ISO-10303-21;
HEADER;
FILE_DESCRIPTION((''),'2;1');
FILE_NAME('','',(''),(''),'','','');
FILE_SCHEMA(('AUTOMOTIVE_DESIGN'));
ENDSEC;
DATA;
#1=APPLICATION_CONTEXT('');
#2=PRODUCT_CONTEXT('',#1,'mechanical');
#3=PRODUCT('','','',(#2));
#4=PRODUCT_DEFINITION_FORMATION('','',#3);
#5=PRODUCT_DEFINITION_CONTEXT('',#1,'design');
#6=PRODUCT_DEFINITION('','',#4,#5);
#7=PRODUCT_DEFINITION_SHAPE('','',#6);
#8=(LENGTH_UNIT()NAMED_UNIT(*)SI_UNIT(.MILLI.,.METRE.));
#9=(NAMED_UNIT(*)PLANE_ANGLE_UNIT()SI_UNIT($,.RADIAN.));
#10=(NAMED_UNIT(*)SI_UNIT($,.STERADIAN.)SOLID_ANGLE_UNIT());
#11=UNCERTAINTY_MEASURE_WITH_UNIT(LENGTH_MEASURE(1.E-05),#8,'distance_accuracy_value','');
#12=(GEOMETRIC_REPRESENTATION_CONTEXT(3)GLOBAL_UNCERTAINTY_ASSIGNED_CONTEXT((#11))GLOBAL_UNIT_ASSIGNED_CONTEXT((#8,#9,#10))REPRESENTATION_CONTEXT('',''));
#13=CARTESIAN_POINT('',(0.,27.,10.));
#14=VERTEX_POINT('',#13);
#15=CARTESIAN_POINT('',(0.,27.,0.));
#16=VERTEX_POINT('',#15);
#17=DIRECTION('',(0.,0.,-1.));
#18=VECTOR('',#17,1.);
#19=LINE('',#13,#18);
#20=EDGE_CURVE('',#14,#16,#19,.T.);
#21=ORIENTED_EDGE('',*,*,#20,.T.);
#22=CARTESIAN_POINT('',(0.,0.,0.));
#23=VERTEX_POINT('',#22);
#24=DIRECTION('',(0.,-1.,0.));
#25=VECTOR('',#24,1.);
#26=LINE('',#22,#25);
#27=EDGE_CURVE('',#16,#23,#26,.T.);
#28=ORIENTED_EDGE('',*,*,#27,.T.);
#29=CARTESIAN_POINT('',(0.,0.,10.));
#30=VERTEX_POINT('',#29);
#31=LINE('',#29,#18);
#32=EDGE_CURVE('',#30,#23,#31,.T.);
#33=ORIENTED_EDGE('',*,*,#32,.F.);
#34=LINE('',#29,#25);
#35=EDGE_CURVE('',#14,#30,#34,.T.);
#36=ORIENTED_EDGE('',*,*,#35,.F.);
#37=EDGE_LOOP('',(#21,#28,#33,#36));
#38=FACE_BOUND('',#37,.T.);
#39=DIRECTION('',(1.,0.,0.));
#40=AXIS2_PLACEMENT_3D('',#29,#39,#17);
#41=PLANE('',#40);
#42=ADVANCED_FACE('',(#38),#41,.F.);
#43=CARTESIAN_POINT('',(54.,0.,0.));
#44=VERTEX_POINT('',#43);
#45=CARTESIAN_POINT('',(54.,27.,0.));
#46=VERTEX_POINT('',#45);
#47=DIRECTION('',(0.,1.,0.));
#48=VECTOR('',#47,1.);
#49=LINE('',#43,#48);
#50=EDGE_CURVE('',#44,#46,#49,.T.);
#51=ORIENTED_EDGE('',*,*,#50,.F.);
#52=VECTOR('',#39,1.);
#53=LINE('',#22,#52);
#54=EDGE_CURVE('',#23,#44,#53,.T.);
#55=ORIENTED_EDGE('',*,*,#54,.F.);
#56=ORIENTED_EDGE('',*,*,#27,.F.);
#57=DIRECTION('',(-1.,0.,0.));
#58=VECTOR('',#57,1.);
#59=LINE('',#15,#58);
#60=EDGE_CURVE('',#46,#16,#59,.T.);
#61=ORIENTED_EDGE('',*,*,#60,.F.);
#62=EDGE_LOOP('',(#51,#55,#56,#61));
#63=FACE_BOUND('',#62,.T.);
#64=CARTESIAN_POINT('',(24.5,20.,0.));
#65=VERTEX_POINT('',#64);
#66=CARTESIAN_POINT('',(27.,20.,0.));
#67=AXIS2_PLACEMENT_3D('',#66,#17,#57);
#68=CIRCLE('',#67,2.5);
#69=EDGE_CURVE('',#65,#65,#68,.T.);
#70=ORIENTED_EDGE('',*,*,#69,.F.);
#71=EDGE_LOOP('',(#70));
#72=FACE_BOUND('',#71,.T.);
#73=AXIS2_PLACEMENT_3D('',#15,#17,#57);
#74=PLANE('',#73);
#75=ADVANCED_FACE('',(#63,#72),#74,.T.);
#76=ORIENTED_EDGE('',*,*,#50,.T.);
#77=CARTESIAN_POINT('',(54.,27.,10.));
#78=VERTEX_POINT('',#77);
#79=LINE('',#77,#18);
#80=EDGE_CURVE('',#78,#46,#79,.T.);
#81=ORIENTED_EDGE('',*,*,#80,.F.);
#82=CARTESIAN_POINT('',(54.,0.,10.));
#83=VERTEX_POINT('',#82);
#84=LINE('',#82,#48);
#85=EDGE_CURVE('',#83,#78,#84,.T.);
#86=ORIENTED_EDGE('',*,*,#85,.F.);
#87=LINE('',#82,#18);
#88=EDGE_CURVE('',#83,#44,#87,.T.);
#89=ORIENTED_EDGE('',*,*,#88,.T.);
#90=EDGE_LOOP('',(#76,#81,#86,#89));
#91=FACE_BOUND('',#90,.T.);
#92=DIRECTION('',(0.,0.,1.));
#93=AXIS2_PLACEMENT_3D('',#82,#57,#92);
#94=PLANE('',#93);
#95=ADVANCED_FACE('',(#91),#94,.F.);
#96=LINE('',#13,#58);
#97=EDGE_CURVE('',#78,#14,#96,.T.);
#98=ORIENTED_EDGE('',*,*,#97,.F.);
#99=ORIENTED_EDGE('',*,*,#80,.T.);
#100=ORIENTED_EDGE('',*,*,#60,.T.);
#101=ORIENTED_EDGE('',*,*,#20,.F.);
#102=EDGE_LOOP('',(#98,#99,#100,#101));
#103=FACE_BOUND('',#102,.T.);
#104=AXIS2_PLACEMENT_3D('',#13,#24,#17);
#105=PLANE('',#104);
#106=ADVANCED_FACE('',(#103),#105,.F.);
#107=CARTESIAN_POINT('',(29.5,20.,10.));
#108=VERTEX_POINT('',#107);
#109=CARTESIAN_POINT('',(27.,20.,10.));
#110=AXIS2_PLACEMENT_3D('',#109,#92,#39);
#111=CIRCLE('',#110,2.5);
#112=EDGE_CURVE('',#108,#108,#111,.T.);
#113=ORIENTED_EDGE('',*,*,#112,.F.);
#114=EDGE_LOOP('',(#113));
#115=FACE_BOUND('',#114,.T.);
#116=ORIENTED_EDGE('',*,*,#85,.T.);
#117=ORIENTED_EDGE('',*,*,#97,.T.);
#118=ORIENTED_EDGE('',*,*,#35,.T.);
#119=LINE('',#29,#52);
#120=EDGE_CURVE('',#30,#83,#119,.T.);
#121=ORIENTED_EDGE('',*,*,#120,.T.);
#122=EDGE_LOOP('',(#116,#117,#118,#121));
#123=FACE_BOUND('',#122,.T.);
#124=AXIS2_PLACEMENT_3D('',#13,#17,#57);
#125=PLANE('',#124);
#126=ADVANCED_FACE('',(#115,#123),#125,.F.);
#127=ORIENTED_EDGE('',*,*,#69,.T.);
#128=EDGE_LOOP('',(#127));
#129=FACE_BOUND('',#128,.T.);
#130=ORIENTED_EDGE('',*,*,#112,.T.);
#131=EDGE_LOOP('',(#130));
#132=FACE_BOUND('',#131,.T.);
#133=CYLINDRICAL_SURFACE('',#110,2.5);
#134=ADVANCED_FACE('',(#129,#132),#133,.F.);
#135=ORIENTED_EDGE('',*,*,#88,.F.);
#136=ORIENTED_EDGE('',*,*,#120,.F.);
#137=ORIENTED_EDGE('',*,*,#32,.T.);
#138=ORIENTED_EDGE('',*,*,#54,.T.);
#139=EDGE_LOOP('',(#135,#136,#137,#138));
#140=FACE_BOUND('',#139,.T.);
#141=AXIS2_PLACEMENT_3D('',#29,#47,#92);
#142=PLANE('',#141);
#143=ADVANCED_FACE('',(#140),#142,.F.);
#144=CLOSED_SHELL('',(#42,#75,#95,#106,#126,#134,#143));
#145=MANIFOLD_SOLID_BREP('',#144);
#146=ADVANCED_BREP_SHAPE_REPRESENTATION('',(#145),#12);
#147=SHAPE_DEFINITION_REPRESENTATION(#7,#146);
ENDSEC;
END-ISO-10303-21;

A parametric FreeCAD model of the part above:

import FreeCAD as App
import Part
import Sketcher

doc = App.newDocument("Part")
body = doc.addObject("PartDesign::Body", "Body")

# Sketch on XY plane
sketch1 = body.newObject("Sketcher::SketchObject", "Sketch")
sketch1.AttachmentSupport = (doc.getObject("XY_Plane"), [""])
sketch1.MapMode = "FlatFace"
sketch1.addGeometry([
    Part.LineSegment(App.Vector(0, 27, 0), App.Vector(0, 0, 0)),
    Part.LineSegment(App.Vector(0, 0, 0), App.Vector(54, 0, 0)),
    Part.LineSegment(App.Vector(54, 0, 0), App.Vector(54, 27, 0)),
    Part.LineSegment(App.Vector(54, 27, 0), App.Vector(0, 27, 0)),
], False)
sketch1.addConstraint([
    Sketcher.Constraint("Coincident", 0, 2, 1, 1),
    Sketcher.Constraint("Coincident", 1, 2, 2, 1),
    Sketcher.Constraint("Coincident", 2, 2, 3, 1),
    Sketcher.Constraint("Coincident", 3, 2, 0, 1),
    Sketcher.Constraint("Vertical", 0),
    Sketcher.Constraint("Horizontal", 1),
    Sketcher.Constraint("Vertical", 2),
    Sketcher.Constraint("Horizontal", 3),
    Sketcher.Constraint("Coincident", 0, 2, -1, 1),
    Sketcher.Constraint("DistanceX", 1, 1, 1, 2, 54.0),
    Sketcher.Constraint("DistanceY", 0, 2, 0, 1, 27.0),
])
pad1 = body.newObject("PartDesign::Pad", "Pad")
pad1.Profile = sketch1
pad1.Length = 10

# Sketch on XY plane
sketch2 = body.newObject("Sketcher::SketchObject", "Sketch001")
sketch2.AttachmentSupport = (doc.getObject("XY_Plane"), [""])
sketch2.MapMode = "FlatFace"
sketch2.AttachmentOffset = App.Placement(App.Vector(0, 0, 10), App.Rotation())
sketch2.addGeometry(Part.Circle(App.Vector(27, 20, 0), App.Vector(0, 0, 1), 2.5), False)
sketch2.addConstraint([
    Sketcher.Constraint("Diameter", 0, 5.0),
    Sketcher.Constraint("DistanceX", -1, 1, 0, 3, 27.0),
    Sketcher.Constraint("DistanceY", -1, 1, 0, 3, 20.0),
])
doc.recompute()
hole = body.newObject("PartDesign::Hole", "Hole")
hole.Profile = sketch2
hole.ThreadType = "None"
hole.Diameter = 5
hole.DepthType = "Dimension"
hole.Depth = 15
hole.DrillPoint = "Angled"
hole.DrillPointAngle = 118

doc.recompute()
